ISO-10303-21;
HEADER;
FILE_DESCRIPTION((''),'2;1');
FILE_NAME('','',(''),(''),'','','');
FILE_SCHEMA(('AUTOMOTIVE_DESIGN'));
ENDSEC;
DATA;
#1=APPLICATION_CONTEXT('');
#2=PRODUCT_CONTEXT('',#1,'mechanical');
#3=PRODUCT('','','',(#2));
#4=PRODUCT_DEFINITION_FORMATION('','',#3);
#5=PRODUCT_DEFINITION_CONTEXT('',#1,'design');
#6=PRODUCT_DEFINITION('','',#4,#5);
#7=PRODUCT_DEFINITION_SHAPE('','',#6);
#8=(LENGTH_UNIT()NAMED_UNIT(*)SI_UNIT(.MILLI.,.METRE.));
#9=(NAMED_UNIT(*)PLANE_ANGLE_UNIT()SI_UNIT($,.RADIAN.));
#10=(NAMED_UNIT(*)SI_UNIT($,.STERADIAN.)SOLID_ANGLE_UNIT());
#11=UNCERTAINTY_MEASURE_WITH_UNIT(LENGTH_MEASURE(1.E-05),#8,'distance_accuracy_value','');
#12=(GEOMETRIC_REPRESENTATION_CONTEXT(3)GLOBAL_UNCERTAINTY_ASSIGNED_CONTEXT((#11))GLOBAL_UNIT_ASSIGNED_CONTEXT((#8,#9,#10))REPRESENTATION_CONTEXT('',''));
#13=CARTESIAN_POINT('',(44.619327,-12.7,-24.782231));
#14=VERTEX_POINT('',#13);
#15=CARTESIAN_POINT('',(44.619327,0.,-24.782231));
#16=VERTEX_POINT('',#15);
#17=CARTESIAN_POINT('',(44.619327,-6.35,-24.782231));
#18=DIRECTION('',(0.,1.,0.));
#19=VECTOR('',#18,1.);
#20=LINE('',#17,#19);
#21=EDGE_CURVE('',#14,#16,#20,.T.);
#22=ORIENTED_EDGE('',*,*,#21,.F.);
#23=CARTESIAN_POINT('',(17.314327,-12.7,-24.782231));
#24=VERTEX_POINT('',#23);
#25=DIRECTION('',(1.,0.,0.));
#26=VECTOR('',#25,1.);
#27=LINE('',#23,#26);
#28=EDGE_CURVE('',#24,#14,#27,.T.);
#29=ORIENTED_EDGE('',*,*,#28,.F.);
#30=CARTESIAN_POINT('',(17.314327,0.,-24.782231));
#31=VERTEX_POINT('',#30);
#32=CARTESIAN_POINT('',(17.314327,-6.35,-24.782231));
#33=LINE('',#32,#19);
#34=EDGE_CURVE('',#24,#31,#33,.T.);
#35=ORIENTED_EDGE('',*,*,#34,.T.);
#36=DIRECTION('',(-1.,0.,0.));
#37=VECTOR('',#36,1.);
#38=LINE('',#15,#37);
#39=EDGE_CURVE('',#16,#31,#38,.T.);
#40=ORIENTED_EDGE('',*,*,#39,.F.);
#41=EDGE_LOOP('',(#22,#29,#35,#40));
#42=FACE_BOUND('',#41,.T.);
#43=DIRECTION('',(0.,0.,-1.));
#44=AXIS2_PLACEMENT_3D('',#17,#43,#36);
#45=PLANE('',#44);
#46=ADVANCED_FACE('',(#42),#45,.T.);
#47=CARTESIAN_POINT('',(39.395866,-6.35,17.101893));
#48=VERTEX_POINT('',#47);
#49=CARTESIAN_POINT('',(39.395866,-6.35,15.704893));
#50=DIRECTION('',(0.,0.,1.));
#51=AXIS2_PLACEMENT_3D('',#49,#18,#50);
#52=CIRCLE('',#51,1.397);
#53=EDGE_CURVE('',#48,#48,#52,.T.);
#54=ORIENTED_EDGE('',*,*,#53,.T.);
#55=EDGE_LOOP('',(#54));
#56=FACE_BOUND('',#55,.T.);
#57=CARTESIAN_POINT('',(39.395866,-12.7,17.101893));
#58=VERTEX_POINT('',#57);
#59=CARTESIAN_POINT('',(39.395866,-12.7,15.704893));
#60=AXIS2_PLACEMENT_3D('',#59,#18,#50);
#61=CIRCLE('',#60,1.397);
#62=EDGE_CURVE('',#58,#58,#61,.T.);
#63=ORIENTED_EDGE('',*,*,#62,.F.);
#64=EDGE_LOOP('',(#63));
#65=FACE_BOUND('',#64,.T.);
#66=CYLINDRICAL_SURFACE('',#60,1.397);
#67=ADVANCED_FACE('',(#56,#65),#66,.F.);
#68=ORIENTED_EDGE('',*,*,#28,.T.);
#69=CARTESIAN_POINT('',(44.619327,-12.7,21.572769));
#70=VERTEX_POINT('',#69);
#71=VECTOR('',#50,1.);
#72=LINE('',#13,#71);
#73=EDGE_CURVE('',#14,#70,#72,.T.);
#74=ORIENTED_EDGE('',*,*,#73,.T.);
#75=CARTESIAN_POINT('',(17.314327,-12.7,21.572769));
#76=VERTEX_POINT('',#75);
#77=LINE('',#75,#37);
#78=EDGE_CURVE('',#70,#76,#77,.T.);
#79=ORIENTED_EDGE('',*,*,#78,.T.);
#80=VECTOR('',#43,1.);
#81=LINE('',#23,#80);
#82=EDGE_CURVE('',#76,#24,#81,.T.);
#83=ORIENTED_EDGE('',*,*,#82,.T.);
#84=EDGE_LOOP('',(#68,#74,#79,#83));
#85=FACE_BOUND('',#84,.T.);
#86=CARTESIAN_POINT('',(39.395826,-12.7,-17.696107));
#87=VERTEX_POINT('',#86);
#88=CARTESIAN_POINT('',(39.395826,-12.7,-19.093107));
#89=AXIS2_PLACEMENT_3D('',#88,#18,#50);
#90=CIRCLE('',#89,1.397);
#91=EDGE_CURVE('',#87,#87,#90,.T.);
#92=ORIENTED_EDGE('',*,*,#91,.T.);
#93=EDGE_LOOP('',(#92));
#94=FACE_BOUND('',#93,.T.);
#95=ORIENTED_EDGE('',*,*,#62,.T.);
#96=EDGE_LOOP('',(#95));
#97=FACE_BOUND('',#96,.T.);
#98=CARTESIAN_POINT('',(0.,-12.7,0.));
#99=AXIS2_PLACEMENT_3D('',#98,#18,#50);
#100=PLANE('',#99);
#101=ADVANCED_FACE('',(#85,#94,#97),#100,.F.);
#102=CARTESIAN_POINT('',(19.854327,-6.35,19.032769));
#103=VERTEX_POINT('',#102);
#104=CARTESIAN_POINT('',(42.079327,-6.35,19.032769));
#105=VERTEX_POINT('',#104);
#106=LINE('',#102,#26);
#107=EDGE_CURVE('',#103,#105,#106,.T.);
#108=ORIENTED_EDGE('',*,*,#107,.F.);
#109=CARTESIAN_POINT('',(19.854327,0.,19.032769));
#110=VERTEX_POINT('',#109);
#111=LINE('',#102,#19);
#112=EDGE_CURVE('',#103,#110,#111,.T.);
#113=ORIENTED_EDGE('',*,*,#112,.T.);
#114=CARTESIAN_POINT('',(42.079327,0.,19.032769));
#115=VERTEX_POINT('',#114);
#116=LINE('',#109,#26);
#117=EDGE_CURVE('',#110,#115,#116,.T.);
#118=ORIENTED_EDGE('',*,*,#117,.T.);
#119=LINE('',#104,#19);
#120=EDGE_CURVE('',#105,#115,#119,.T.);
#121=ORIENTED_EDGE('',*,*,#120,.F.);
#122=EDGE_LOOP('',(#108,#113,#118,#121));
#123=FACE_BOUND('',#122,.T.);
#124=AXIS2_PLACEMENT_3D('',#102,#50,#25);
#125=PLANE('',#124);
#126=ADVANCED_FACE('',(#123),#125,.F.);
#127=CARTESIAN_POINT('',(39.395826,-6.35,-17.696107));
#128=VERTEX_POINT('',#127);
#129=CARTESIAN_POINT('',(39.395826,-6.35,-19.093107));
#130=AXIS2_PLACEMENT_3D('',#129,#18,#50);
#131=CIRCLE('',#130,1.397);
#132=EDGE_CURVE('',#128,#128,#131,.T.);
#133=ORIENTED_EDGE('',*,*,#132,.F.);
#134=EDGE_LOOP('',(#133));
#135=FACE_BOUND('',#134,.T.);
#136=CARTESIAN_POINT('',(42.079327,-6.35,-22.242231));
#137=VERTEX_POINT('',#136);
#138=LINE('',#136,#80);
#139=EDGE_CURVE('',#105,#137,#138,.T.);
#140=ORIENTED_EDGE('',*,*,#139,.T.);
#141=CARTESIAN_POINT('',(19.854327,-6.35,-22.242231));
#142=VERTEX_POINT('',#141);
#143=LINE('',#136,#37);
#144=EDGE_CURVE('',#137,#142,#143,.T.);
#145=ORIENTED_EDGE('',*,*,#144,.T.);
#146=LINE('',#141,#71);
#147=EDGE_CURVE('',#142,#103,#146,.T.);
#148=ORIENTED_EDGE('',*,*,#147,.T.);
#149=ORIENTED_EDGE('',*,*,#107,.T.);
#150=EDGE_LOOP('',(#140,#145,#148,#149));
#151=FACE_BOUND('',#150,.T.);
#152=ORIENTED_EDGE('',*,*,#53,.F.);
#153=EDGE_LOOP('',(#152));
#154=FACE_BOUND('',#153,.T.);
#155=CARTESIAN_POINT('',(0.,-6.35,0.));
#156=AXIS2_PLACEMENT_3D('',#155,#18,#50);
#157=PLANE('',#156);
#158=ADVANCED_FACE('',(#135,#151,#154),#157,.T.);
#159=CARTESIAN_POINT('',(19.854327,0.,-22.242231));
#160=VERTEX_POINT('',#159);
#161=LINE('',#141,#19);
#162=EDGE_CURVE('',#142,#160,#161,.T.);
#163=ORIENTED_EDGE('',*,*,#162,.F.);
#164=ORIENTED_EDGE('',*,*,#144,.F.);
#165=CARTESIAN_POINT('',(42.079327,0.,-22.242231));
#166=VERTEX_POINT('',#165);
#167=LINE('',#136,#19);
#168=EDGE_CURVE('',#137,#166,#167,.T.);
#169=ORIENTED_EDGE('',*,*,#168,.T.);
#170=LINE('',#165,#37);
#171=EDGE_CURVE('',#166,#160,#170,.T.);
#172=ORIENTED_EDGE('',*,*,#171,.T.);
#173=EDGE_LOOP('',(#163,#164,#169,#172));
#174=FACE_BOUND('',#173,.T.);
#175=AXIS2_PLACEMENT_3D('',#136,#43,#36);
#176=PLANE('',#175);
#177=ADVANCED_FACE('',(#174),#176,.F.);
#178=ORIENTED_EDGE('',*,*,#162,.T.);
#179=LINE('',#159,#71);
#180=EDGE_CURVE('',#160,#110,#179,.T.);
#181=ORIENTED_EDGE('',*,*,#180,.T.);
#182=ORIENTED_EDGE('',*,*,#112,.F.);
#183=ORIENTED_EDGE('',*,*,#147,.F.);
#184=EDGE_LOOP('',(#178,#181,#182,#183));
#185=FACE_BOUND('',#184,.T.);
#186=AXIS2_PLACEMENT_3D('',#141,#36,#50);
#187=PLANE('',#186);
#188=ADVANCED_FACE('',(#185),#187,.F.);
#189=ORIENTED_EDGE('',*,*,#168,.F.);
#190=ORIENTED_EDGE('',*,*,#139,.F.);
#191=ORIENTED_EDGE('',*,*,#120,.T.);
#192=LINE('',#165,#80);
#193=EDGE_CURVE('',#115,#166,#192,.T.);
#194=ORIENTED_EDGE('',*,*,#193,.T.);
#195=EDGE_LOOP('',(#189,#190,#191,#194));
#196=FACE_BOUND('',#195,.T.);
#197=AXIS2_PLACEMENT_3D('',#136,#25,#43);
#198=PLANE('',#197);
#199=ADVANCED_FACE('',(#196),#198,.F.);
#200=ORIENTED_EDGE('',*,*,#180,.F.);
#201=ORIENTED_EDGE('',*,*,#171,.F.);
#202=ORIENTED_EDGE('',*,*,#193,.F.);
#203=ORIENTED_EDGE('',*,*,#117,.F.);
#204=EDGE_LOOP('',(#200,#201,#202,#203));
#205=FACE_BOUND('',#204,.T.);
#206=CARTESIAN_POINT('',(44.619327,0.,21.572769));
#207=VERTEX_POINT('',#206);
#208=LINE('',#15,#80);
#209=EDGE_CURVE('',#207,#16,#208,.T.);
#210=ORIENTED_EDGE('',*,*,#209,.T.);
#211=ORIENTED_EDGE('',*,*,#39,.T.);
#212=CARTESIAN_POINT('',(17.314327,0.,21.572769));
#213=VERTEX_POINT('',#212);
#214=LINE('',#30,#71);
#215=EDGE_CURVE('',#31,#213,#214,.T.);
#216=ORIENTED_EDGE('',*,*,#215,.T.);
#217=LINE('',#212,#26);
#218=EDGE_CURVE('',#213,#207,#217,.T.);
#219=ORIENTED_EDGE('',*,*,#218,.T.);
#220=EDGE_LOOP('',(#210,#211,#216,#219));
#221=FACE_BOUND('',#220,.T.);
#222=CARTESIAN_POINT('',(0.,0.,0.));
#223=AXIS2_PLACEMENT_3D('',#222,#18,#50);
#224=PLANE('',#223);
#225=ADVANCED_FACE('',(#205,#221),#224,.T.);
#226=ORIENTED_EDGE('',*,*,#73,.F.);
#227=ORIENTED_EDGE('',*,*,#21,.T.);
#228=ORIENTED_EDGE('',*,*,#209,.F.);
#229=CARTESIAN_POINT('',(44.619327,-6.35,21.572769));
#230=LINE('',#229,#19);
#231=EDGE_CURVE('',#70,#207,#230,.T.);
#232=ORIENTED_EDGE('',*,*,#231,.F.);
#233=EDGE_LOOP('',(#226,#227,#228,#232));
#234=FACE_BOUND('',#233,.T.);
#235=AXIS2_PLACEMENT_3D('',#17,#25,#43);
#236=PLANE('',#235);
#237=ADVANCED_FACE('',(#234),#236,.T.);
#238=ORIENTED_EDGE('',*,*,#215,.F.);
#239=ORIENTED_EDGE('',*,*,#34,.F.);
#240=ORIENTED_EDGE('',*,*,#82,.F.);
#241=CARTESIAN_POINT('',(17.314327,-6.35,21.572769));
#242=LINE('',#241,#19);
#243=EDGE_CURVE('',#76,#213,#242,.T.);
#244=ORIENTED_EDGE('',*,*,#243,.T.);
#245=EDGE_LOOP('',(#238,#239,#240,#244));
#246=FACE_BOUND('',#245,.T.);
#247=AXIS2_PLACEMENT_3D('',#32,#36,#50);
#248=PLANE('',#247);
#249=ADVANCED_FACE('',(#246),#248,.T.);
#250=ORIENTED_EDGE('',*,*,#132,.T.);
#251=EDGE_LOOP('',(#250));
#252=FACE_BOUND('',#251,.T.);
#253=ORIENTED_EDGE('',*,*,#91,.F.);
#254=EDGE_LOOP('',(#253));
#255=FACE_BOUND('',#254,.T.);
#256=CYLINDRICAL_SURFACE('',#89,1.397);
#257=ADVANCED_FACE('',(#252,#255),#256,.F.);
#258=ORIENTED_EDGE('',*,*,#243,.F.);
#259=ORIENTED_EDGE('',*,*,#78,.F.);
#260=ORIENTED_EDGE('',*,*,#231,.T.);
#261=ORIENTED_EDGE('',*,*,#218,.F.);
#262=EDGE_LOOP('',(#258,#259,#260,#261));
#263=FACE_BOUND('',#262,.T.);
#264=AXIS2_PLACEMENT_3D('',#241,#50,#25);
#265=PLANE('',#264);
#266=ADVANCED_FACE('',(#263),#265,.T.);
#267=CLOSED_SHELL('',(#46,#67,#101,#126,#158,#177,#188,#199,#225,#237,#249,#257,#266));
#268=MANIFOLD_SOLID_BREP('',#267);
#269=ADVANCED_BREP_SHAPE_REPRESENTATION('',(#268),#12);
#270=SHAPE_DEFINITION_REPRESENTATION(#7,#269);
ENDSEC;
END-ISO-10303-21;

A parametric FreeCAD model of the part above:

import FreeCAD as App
import Part
import Sketcher
from FreeCAD import Vector
Q = App.Units.Quantity


def add_polygon(sketch, points):
    """Adds a closed chain of lines whose ends are joined by coincident constraints."""
    first, n = sketch.GeometryCount, len(points)
    for a, b in zip(points, points[1:] + points[:1]):
        sketch.addGeometry(Part.LineSegment(App.Vector(*a, 0), App.Vector(*b, 0)), False)
    for i in range(n):
        sketch.addConstraint(Sketcher.Constraint("Coincident", first + i, 2, first + (i + 1) % n, 1))

doc = App.newDocument("Part")
body = doc.addObject("PartDesign::Body", "Body")

sketch1 = body.newObject("Sketcher::SketchObject", "Sketch")
sketch1.AttachmentSupport = (doc.getObject("XZ_Plane"), [""])
sketch1.MapMode = "FlatFace"
add_polygon(sketch1, [(17.314327, -24.782231), (17.314327, 21.572769), (44.619327, 21.572769), (44.619327, -24.782231)])
add_polygon(sketch1, [(42.079327, 19.032769), (19.854327, 19.032769), (19.854327, -22.242231), (42.079327, -22.242231)])
sketch1.addConstraint([
    Sketcher.Constraint("Vertical", 0),
    Sketcher.Constraint("Horizontal", 1),
    Sketcher.Constraint("Vertical", 2),
    Sketcher.Constraint("Horizontal", 3),
    Sketcher.Constraint("Horizontal", 4),
    Sketcher.Constraint("Vertical", 5),
    Sketcher.Constraint("Horizontal", 6),
    Sketcher.Constraint("Vertical", 7),
    Sketcher.Constraint("DistanceX", 0, 2, 4, 2, Q("0.1 in")),
    Sketcher.Constraint("DistanceY", 4, 2, 0, 2, Q("0.1 in")),
    Sketcher.Constraint("DistanceY", 3, 2, 5, 2, Q("0.1 in")),
    Sketcher.Constraint("DistanceX", 6, 2, 2, 2, Q("0.1 in")),
    Sketcher.Constraint("DistanceX", 1, 1, 1, 2, Q("1.075 in")),
    Sketcher.Constraint("DistanceY", 0, 1, 0, 2, Q("1.825 in")),
    Sketcher.Constraint("DistanceY", -1, 1, 0, 2, Q("21.572769 mm")),
    Sketcher.Constraint("DistanceX", -1, 1, 0, 2, Q("17.314327 mm")),
])
pad1 = body.newObject("PartDesign::Pad", "Pad")
pad1.Profile = sketch1
pad1.Length = Q("0.25 in")

sketch2 = body.newObject("Sketcher::SketchObject", "Sketch001")
sketch2.AttachmentSupport = (doc.getObject("XZ_Plane"), [""])
sketch2.MapMode = "FlatFace"
sketch2.AttachmentOffset = App.Placement(Vector(0, 0, 0.25 * 25.4), App.Rotation())
add_polygon(sketch2, [(44.619327, -24.782231), (44.619327, 21.572769), (17.314327, 21.572769), (17.314327, -24.782231)])
sketch2.addConstraint([
    Sketcher.Constraint("Vertical", 0),
    Sketcher.Constraint("Horizontal", 1),
    Sketcher.Constraint("Vertical", 2),
    Sketcher.Constraint("Horizontal", 3),
    Sketcher.Constraint("DistanceX", 1, 2, 1, 1, Q("1.075 in")),
    Sketcher.Constraint("DistanceY", 0, 1, 0, 2, Q("1.825 in")),
    Sketcher.Constraint("DistanceY", -1, 1, 0, 2, Q("21.572769 mm")),
    Sketcher.Constraint("DistanceX", -1, 1, 0, 2, Q("44.619327 mm")),
])
pad2 = body.newObject("PartDesign::Pad", "Pad001")
pad2.Profile = sketch2
pad2.Length = Q("0.25 in")

sketch3 = body.newObject("Sketcher::SketchObject", "Sketch002")
sketch3.AttachmentSupport = (doc.getObject("XZ_Plane"), [""])
sketch3.MapMode = "FlatFace"
sketch3.AttachmentOffset = App.Placement(Vector(0, 0, 0.25 * 25.4), App.Rotation())
sketch3.addGeometry([
    Part.Circle(Vector(39.395826, -19.093107, 0), Vector(0, 0, 1), 1.397),
    Part.Circle(Vector(39.395866, 15.704893, 0), Vector(0, 0, 1), 1.397),
], False)
sketch3.addConstraint([
    Sketcher.Constraint("Equal", 0, 1),
    Sketcher.Constraint("Diameter", 0, Q("0.11 in")),
    Sketcher.Constraint("DistanceY", 0, 3, 1, 3, Q("1.37 in")),
    Sketcher.Constraint("DistanceX", -1, 1, 0, 3, Q("39.395826 mm")),
    Sketcher.Constraint("DistanceY", 0, 3, -1, 1, Q("19.093107 mm")),
    Sketcher.Constraint("DistanceX", -1, 1, 1, 3, Q("39.395866 mm")),
])
pocket1 = body.newObject("PartDesign::Pocket", "Pocket")
pocket1.Profile = sketch3
pocket1.Length = Q("0.25 in")
pocket1.Reversed = True

doc.recompute()
